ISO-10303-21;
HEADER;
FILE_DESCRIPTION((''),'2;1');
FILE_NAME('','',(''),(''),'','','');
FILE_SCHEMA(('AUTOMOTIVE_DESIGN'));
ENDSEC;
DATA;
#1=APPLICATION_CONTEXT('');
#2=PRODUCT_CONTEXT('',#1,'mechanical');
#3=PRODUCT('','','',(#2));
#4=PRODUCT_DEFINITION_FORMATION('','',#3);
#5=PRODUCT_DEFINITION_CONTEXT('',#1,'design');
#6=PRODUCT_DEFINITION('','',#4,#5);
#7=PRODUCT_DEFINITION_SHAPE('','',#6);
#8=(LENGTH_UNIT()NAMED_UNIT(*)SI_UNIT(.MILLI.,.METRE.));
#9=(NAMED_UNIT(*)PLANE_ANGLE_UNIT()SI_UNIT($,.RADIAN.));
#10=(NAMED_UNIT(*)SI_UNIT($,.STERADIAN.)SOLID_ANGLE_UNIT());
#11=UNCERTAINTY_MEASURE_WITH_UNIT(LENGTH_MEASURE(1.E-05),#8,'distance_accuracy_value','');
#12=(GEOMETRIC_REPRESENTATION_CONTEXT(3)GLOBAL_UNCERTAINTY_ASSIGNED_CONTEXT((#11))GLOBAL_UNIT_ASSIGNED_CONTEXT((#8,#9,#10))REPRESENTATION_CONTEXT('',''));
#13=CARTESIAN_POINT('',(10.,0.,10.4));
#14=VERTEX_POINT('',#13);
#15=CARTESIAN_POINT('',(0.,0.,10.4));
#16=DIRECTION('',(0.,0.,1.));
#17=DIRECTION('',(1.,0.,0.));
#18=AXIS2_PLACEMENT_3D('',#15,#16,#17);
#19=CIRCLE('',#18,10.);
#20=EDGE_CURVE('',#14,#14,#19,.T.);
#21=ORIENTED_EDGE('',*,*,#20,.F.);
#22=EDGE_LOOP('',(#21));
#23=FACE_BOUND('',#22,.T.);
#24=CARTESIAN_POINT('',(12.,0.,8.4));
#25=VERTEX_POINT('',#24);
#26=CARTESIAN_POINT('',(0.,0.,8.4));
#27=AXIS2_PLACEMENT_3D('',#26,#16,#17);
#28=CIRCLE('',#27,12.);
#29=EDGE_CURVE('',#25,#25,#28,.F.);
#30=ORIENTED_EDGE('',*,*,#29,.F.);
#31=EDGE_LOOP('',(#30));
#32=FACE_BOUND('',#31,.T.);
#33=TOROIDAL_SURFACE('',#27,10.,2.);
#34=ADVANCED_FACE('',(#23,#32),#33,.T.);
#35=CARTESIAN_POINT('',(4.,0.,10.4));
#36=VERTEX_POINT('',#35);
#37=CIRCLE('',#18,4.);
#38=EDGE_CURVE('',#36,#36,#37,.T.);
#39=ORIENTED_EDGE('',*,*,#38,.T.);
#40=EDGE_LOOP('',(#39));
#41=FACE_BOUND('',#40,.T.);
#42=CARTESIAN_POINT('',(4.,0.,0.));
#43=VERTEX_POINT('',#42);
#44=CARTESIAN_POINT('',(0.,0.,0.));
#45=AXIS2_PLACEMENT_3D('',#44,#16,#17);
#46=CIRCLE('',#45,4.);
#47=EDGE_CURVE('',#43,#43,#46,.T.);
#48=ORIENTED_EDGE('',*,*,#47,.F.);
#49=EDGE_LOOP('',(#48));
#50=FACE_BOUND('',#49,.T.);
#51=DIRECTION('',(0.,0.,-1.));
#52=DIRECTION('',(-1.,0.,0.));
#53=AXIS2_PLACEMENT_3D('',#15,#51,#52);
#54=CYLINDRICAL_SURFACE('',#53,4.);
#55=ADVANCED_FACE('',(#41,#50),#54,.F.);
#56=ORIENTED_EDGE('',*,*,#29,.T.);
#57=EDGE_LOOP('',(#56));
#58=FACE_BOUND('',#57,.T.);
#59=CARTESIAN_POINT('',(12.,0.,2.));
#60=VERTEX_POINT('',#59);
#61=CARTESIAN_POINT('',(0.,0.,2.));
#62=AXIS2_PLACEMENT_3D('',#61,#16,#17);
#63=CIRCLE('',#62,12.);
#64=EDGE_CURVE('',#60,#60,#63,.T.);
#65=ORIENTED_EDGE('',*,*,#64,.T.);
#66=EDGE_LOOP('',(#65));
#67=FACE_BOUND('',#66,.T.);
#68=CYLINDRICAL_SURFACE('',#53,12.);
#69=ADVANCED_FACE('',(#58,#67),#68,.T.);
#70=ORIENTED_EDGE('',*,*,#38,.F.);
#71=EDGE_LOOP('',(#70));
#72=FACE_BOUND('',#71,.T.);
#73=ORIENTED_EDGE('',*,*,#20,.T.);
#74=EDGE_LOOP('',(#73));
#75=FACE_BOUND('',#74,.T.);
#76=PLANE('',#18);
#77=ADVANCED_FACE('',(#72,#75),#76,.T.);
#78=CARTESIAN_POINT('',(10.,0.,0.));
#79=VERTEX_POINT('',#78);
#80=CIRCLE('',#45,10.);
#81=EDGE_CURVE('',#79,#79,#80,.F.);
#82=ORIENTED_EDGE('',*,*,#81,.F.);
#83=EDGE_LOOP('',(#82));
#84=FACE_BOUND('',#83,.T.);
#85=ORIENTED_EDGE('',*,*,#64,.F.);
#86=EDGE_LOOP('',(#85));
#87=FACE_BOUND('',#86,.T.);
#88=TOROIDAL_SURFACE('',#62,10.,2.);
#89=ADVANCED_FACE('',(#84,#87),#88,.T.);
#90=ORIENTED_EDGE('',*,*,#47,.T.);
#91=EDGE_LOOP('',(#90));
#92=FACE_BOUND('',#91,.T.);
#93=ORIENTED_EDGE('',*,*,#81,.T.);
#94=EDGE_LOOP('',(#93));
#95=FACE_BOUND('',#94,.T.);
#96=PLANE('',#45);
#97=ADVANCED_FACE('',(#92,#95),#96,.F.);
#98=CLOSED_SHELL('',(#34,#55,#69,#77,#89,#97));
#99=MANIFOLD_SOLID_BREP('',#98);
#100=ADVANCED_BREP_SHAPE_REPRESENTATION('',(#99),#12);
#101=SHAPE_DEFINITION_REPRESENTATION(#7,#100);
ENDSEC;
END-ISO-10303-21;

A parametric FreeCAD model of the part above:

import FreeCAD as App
import Part
import Sketcher


def edges_at(feature, points):
    """Names of the edges that pass closest to the given points."""
    edges = feature.Shape.Edges
    near = lambda p: min(range(len(edges)), key=lambda i: edges[i].distToShape(Part.Vertex(*p))[0])
    return sorted({f"Edge{near(p) + 1}" for p in points})

doc = App.newDocument("Part")
body = doc.addObject("PartDesign::Body", "Body")

# Sketch on XY plane
sketch1 = body.newObject("Sketcher::SketchObject", "Sketch")
sketch1.AttachmentSupport = (doc.getObject("XY_Plane"), [""])
sketch1.MapMode = "FlatFace"
sketch1.addGeometry(Part.Circle(App.Vector(0, 0, 0), App.Vector(0, 0, 1), 12), False)
sketch1.addConstraint(Sketcher.Constraint("Coincident", 0, 3, -1, 1))
sketch1.addConstraint(Sketcher.Constraint("Diameter", 0, 24.0))
pad1 = body.newObject("PartDesign::Pad", "Pad")
pad1.Profile = sketch1
pad1.Length = 10.4
doc.recompute()

fillet = body.newObject("PartDesign::Fillet", "Fillet")
fillet.Base = (pad1, edges_at(pad1, [(-12, 0, 10.4)]))
fillet.Radius = 2
doc.recompute()

fillet2 = body.newObject("PartDesign::Fillet", "Fillet001")
fillet2.Base = (fillet, edges_at(fillet, [(-12, 0, 0)]))
fillet2.Radius = 2

# Sketch on XY plane
sketch2 = body.newObject("Sketcher::SketchObject", "Sketch001")
sketch2.AttachmentSupport = (doc.getObject("XY_Plane"), [""])
sketch2.MapMode = "FlatFace"
sketch2.addGeometry(Part.Circle(App.Vector(0, 0, 0), App.Vector(0, 0, 1), 4), False)
sketch2.addConstraint(Sketcher.Constraint("Coincident", 0, 3, -1, 1))
sketch2.addConstraint(Sketcher.Constraint("Diameter", 0, 8.0))
pocket1 = body.newObject("PartDesign::Pocket", "Pocket")
pocket1.Profile = sketch2
pocket1.Length = 10.4
pocket1.Reversed = True

doc.recompute()
